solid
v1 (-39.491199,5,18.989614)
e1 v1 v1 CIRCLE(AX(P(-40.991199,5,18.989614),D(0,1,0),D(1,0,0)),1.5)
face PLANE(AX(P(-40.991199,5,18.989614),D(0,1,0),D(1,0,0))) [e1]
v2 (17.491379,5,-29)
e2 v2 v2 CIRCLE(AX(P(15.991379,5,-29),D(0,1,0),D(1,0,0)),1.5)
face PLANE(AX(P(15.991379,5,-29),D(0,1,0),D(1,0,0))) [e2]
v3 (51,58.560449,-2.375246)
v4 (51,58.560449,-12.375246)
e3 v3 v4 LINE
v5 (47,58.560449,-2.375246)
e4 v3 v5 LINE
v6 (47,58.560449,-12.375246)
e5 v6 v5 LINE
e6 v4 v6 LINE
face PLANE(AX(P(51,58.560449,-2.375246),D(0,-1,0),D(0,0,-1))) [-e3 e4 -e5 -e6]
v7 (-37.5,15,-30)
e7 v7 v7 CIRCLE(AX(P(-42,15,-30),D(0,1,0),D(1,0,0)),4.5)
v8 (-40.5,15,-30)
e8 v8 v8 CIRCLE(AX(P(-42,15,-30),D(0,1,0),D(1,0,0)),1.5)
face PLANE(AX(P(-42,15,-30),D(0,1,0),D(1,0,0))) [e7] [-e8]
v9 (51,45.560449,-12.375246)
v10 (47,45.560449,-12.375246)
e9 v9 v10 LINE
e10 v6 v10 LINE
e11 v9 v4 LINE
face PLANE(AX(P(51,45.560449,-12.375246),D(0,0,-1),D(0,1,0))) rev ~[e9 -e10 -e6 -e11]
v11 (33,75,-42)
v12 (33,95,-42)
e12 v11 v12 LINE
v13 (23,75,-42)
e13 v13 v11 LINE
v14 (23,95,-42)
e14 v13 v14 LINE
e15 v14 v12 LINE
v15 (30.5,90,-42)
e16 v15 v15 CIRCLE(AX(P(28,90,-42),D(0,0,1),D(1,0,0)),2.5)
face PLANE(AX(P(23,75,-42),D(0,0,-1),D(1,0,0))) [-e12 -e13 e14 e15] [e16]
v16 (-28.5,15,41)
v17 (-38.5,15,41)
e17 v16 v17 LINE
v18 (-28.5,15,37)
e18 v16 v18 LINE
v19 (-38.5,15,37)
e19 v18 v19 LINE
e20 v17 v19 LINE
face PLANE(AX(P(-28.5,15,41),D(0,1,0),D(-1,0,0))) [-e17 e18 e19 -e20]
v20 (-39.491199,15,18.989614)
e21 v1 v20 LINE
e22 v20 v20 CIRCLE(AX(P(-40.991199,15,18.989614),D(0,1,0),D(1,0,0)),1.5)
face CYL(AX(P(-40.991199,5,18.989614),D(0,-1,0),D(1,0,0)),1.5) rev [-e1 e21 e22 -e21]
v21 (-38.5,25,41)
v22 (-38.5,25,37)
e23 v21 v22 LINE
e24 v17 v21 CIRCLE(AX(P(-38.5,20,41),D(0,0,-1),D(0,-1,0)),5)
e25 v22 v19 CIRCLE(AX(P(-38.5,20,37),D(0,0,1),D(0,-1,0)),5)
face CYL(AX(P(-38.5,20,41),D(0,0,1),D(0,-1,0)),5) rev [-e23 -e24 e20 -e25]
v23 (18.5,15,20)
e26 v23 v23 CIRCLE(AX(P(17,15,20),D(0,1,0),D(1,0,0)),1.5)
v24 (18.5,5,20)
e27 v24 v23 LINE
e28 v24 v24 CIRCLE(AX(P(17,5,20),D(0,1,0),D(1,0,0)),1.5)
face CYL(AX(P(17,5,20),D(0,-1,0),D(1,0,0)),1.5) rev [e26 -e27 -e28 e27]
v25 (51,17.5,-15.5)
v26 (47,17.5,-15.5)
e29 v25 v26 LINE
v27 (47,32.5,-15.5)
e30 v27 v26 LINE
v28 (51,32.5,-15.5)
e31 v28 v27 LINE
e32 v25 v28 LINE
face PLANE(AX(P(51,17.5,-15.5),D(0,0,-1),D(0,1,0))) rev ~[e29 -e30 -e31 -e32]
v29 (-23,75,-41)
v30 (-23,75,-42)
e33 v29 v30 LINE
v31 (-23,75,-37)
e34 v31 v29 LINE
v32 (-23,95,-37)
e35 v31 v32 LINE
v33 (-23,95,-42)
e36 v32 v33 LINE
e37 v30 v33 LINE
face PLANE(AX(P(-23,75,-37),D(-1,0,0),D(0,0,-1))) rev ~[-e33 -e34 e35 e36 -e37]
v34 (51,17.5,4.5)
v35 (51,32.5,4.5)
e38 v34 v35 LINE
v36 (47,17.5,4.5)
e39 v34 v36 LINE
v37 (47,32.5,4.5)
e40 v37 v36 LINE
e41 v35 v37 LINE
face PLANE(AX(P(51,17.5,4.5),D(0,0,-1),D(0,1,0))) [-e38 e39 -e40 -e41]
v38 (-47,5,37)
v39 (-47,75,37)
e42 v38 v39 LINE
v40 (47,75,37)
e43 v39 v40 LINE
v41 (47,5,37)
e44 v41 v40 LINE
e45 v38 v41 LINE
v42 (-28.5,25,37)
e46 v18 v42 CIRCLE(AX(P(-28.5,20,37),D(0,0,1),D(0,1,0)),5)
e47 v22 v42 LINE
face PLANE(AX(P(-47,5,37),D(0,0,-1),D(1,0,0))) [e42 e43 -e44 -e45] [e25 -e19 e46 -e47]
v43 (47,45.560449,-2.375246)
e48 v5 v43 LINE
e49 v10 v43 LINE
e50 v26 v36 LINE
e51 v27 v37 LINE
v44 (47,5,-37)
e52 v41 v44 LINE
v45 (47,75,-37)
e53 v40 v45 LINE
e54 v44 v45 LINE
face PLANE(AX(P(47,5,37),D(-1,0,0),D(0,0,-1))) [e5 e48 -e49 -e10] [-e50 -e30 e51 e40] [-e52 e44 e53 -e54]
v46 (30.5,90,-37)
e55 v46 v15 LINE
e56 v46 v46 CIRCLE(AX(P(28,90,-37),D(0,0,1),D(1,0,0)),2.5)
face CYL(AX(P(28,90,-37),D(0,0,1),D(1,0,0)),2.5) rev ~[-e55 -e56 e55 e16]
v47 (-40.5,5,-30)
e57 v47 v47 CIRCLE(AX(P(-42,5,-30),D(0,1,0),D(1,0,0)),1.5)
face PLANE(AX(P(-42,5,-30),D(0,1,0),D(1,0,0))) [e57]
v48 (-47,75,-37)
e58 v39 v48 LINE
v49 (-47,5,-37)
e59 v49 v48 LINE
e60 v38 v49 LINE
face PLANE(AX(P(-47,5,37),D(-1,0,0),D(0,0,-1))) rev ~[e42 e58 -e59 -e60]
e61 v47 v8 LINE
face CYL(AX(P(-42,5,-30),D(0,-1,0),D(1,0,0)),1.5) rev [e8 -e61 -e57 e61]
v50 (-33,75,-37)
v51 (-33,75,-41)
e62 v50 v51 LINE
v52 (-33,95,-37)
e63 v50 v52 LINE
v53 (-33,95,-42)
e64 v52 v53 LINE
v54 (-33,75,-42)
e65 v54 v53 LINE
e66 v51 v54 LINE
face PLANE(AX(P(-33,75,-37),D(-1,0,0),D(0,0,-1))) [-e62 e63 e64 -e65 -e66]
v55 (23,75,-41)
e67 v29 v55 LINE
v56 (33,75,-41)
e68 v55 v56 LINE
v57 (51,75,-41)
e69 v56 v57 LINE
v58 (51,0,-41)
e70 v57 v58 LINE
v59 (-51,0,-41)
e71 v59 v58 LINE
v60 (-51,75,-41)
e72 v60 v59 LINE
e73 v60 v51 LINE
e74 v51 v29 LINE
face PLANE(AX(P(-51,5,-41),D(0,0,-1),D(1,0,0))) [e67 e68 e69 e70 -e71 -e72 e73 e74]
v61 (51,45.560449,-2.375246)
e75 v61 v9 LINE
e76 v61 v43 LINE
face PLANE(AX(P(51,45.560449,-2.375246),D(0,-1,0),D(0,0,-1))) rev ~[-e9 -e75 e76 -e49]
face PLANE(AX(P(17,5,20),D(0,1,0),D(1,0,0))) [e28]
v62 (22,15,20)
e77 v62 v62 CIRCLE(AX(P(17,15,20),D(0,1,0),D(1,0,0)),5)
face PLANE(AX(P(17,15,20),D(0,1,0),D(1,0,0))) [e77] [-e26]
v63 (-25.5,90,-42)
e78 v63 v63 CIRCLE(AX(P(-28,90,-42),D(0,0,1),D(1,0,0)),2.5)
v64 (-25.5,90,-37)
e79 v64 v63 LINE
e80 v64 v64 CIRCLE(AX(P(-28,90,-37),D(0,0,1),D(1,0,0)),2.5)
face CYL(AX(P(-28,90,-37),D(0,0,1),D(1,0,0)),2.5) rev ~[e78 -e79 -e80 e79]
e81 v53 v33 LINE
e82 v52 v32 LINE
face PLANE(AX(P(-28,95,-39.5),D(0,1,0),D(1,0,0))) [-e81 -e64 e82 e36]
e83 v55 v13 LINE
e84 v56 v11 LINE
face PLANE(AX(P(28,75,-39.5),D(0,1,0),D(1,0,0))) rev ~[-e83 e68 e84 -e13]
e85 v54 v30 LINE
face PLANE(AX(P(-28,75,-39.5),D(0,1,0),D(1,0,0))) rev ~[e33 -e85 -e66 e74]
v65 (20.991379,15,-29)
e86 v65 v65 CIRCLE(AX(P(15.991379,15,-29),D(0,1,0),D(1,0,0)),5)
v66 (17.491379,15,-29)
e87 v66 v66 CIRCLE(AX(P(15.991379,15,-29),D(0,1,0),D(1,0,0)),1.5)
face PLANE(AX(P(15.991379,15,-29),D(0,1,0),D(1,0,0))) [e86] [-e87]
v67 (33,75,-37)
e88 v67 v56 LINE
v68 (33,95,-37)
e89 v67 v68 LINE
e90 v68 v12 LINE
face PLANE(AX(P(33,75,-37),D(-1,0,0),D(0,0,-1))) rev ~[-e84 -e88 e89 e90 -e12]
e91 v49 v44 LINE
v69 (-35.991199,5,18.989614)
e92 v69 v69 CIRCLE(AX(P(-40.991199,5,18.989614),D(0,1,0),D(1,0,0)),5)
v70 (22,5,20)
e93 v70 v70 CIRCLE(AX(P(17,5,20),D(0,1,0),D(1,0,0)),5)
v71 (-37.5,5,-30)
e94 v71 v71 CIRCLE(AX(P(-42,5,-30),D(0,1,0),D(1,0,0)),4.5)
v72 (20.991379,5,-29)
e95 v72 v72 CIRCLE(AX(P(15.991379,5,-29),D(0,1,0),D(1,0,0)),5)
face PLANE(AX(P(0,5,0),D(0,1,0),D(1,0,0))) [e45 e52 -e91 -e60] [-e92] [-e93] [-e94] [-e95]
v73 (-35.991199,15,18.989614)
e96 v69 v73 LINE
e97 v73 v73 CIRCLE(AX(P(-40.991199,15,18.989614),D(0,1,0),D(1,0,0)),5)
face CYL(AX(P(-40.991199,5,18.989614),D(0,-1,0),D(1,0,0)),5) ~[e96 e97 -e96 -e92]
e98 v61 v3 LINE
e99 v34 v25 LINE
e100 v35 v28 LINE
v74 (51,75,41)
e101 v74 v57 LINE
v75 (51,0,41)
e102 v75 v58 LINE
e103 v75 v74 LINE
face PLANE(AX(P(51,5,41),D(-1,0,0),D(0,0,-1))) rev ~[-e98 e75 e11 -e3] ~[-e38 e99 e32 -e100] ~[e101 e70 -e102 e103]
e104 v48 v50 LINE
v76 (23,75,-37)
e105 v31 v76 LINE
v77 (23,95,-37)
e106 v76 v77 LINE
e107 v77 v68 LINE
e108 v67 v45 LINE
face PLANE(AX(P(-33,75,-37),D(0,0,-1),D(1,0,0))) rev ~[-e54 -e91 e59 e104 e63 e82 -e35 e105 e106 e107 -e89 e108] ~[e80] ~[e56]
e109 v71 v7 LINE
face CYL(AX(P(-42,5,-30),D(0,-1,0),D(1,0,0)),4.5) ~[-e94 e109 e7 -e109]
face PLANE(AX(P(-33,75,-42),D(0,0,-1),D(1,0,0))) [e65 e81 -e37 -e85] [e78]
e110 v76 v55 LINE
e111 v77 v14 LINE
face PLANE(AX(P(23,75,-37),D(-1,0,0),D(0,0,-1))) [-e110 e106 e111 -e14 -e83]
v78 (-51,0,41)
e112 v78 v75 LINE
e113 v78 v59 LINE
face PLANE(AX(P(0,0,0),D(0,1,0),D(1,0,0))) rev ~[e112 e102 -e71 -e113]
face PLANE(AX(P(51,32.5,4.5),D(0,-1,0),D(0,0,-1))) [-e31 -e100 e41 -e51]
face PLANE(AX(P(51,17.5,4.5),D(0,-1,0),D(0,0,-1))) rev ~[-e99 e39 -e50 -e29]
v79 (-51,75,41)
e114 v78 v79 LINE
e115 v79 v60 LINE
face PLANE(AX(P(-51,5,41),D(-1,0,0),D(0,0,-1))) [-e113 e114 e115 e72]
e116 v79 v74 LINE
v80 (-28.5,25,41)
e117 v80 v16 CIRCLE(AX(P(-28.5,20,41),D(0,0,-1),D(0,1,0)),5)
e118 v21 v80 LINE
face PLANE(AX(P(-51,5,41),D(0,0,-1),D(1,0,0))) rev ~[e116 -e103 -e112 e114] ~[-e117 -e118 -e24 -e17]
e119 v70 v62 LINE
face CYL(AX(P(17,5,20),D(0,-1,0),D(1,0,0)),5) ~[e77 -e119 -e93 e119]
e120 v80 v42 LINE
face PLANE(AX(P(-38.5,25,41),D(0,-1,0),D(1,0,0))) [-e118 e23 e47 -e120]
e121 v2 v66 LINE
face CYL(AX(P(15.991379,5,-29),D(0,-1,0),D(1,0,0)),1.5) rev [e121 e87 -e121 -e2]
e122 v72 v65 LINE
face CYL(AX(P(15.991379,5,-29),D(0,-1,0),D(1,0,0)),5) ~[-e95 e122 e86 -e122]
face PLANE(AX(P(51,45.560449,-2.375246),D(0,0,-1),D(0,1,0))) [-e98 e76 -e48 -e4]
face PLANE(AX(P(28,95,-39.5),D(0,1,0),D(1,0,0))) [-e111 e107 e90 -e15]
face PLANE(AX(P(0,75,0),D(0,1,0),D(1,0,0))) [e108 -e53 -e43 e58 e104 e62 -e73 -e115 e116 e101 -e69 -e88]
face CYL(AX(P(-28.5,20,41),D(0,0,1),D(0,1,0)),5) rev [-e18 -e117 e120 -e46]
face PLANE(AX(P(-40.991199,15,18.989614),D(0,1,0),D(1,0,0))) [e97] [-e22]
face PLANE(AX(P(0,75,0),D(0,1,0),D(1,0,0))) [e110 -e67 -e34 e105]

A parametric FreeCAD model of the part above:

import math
import FreeCAD as App
import Part
import Sketcher
from FreeCAD import Vector


def add_polygon(sketch, points):
    """Adds a closed chain of lines whose ends are joined by coincident constraints."""
    first, n = sketch.GeometryCount, len(points)
    for a, b in zip(points, points[1:] + points[:1]):
        sketch.addGeometry(Part.LineSegment(App.Vector(*a, 0), App.Vector(*b, 0)), False)
    for i in range(n):
        sketch.addConstraint(Sketcher.Constraint("Coincident", first + i, 2, first + (i + 1) % n, 1))

doc = App.newDocument("Part")
params = doc.addObject("Spreadsheet::Sheet", "Params")
for row, (alias, value) in enumerate([
    ("sketch1_width", "102 mm"),
    ("sketch1_height", "82 mm"),
    ("pad1_length", "5 mm"),
    ("sketch2_width", "102 mm"),
    ("sketch2_width2", "94 mm"),
    ("sketch2_height", "82 mm"),
    ("sketch2_height2", "74 mm"),
    ("pad2_length", "70 mm"),
    ("sketch3_radius", "5 mm"),
    ("sketch3_width", "10 mm"),
    ("sketch4_width", "15 mm"),
    ("sketch4_width2", "13 mm"),
    ("sketch4_height", "20 mm"),
    ("sketch4_height2", "10 mm"),
    ("pocket2_length", "10 mm"),
    ("sketch5_diameter", "10 mm"),
    ("sketch5_diameter2", "9 mm"),
    ("pad3_length", "10 mm"),
    ("sketch6_diameter", "3 mm"),
    ("pocket3_length", "10 mm"),
    ("sketch7_width", "10 mm"),
    ("sketch7_height", "5 mm"),
    ("pad4_length", "20 mm"),
    ("sketch8_diameter", "5 mm"),
    ("pocket4_length", "10 mm"),
], start=1):
    params.set(f"A{row}", alias)
    params.set(f"B{row}", "=" + value)
    params.setAlias(f"B{row}", alias)

body = doc.addObject("PartDesign::Body", "Body")

# Sketch on XZ plane
sketch1 = body.newObject("Sketcher::SketchObject", "Sketch")
sketch1.AttachmentSupport = (doc.getObject("XZ_Plane"), [""])
sketch1.MapMode = "FlatFace"
add_polygon(sketch1, [(-51, -41), (-51, 41), (51, 41), (51, -41)])  # lines 0-3
sketch1.addConstraint(Sketcher.Constraint("Vertical", 0))
sketch1.addConstraint(Sketcher.Constraint("Horizontal", 1))
sketch1.addConstraint(Sketcher.Constraint("Vertical", 2))
sketch1.addConstraint(Sketcher.Constraint("Horizontal", 3))
sketch1.addConstraint(Sketcher.Constraint("Symmetric", 0, 2, 2, 2, -1, 1))
sketch1.addConstraint(Sketcher.Constraint("DistanceX", 1, 1, 1, 2, 102.0))
sketch1.addConstraint(Sketcher.Constraint("DistanceY", 0, 1, 0, 2, 82.0))
sketch1.setExpression("Constraints[9]", "Params.sketch1_width")
sketch1.setExpression("Constraints[10]", "Params.sketch1_height")
pad1 = body.newObject("PartDesign::Pad", "Pad")
pad1.Profile = sketch1
pad1.setExpression("Length", "Params.pad1_length")
pad1.Reversed = True

# Sketch on XZ plane
sketch2 = body.newObject("Sketcher::SketchObject", "Sketch001")
sketch2.AttachmentSupport = (doc.getObject("XZ_Plane"), [""])
sketch2.MapMode = "FlatFace"
sketch2.AttachmentOffset = App.Placement(Vector(0, 0, -5), App.Rotation())
add_polygon(sketch2, [(-51, -41), (-51, 41), (51, 41), (51, -41)])  # lines 0-3
add_polygon(sketch2, [(47, 37), (-47, 37), (-47, -37), (47, -37)])  # lines 4-7
sketch2.addConstraint(Sketcher.Constraint("Vertical", 0))
sketch2.addConstraint(Sketcher.Constraint("Horizontal", 1))
sketch2.addConstraint(Sketcher.Constraint("Vertical", 2))
sketch2.addConstraint(Sketcher.Constraint("Horizontal", 3))
sketch2.addConstraint(Sketcher.Constraint("Horizontal", 4))
sketch2.addConstraint(Sketcher.Constraint("Vertical", 5))
sketch2.addConstraint(Sketcher.Constraint("Horizontal", 6))
sketch2.addConstraint(Sketcher.Constraint("Vertical", 7))
sketch2.addConstraint(Sketcher.Constraint("Symmetric", 0, 2, 2, 2, -1, 1))
sketch2.addConstraint(Sketcher.Constraint("Symmetric", 4, 2, 6, 2, -1, 1))
sketch2.addConstraint(Sketcher.Constraint("DistanceX", 1, 1, 1, 2, 102.0))
sketch2.addConstraint(Sketcher.Constraint("DistanceX", 4, 2, 4, 1, 94.0))
sketch2.addConstraint(Sketcher.Constraint("DistanceY", 0, 1, 0, 2, 82.0))
sketch2.addConstraint(Sketcher.Constraint("DistanceY", 5, 2, 5, 1, 74.0))
sketch2.setExpression("Constraints[18]", "Params.sketch2_width")
sketch2.setExpression("Constraints[19]", "Params.sketch2_width2")
sketch2.setExpression("Constraints[20]", "Params.sketch2_height")
sketch2.setExpression("Constraints[21]", "Params.sketch2_height2")
pad2 = body.newObject("PartDesign::Pad", "Pad001")
pad2.Profile = sketch2
pad2.setExpression("Length", "Params.pad2_length")
pad2.Reversed = True

# Sketch on XY plane
sketch3 = body.newObject("Sketcher::SketchObject", "Sketch002")
sketch3.AttachmentSupport = (doc.getObject("XY_Plane"), [""])
sketch3.MapMode = "FlatFace"
sketch3.AttachmentOffset = App.Placement(Vector(0, 0, 41), App.Rotation())
sketch3.addGeometry(Part.LineSegment(Vector(-28, 25, 0), Vector(-38, 25, 0)), False)
sketch3.addGeometry(Part.ArcOfCircle(Part.Circle(Vector(-38, 20, 0), Vector(0, 0, 1), 5), math.radians(90), math.radians(270)), False)
sketch3.addGeometry(Part.LineSegment(Vector(-38, 15, 0), Vector(-28, 15, 0)), False)
sketch3.addGeometry(Part.ArcOfCircle(Part.Circle(Vector(-28, 20, 0), Vector(0, 0, 1), 5), math.radians(-90), math.radians(90)), False)
sketch3.addConstraint(Sketcher.Constraint("Tangent", 0, 2, 1, 1))
sketch3.addConstraint(Sketcher.Constraint("Tangent", 1, 2, 2, 1))
sketch3.addConstraint(Sketcher.Constraint("Tangent", 2, 2, 3, 1))
sketch3.addConstraint(Sketcher.Constraint("Tangent", 3, 2, 0, 1))
sketch3.addConstraint(Sketcher.Constraint("Horizontal", 0))
sketch3.addConstraint(Sketcher.Constraint("Horizontal", 2))
sketch3.addConstraint(Sketcher.Constraint("Radius", 1, 5.0))
sketch3.addConstraint(Sketcher.Constraint("DistanceX", 0, 2, 0, 1, 10.0))
sketch3.addConstraint(Sketcher.Constraint("DistanceY", -1, 1, 1, 3, 20.0))
sketch3.addConstraint(Sketcher.Constraint("DistanceX", 1, 3, -1, 1, 38.5))
sketch3.setExpression("Constraints[6]", "Params.sketch3_radius")
sketch3.setExpression("Constraints[7]", "Params.sketch3_width")
pocket1 = body.newObject("PartDesign::Pocket", "Pocket")
pocket1.Profile = sketch3
pocket1.Type = "UpToFirst"

# Sketch on YZ plane
sketch4 = body.newObject("Sketcher::SketchObject", "Sketch003")
sketch4.AttachmentSupport = (doc.getObject("YZ_Plane"), [""])
sketch4.MapMode = "FlatFace"
sketch4.AttachmentOffset = App.Placement(Vector(0, 0, 51), App.Rotation())
add_polygon(sketch4, [(32, 4), (18, 4), (18, -16), (32, -16)])  # lines 0-3
add_polygon(sketch4, [(59, -2), (46, -2), (46, -12), (59, -12)])  # lines 4-7
sketch4.addConstraint(Sketcher.Constraint("Horizontal", 0))
sketch4.addConstraint(Sketcher.Constraint("Vertical", 1))
sketch4.addConstraint(Sketcher.Constraint("Horizontal", 2))
sketch4.addConstraint(Sketcher.Constraint("Vertical", 3))
sketch4.addConstraint(Sketcher.Constraint("Horizontal", 4))
sketch4.addConstraint(Sketcher.Constraint("Vertical", 5))
sketch4.addConstraint(Sketcher.Constraint("Horizontal", 6))
sketch4.addConstraint(Sketcher.Constraint("Vertical", 7))
sketch4.addConstraint(Sketcher.Constraint("DistanceX", 0, 2, 0, 1, 15.0))
sketch4.addConstraint(Sketcher.Constraint("DistanceX", 4, 2, 4, 1, 13.0))
sketch4.addConstraint(Sketcher.Constraint("DistanceY", 1, 2, 1, 1, 20.0))
sketch4.addConstraint(Sketcher.Constraint("DistanceY", 5, 2, 5, 1, 10.0))
sketch4.addConstraint(Sketcher.Constraint("DistanceX", -1, 1, 0, 2, 17.5))
sketch4.addConstraint(Sketcher.Constraint("DistanceY", -1, 1, 0, 2, 4.5))
sketch4.addConstraint(Sketcher.Constraint("DistanceX", -1, 1, 4, 2, 45.560449))
sketch4.addConstraint(Sketcher.Constraint("DistanceY", 4, 2, -1, 1, 2.375246))
sketch4.setExpression("Constraints[16]", "Params.sketch4_width")
sketch4.setExpression("Constraints[17]", "Params.sketch4_width2")
sketch4.setExpression("Constraints[18]", "Params.sketch4_height")
sketch4.setExpression("Constraints[19]", "Params.sketch4_height2")
pocket2 = body.newObject("PartDesign::Pocket", "Pocket001")
pocket2.Profile = sketch4
pocket2.setExpression("Length", "Params.pocket2_length")

# Sketch on XZ plane
sketch5 = body.newObject("Sketcher::SketchObject", "Sketch004")
sketch5.AttachmentSupport = (doc.getObject("XZ_Plane"), [""])
sketch5.MapMode = "FlatFace"
sketch5.AttachmentOffset = App.Placement(Vector(0, 0, -5), App.Rotation())
sketch5.addGeometry(Part.Circle(Vector(17, 20, 0), Vector(0, 0, 1), 5), False)
sketch5.addGeometry(Part.Circle(Vector(-41, 19, 0), Vector(0, 0, 1), 5), False)
sketch5.addGeometry(Part.Circle(Vector(16, -29, 0), Vector(0, 0, 1), 5), False)
sketch5.addGeometry(Part.Circle(Vector(-42, -30, 0), Vector(0, 0, 1), 4.5), False)
sketch5.addConstraint(Sketcher.Constraint("Equal", 0, 1))
sketch5.addConstraint(Sketcher.Constraint("Equal", 1, 2))
sketch5.addConstraint(Sketcher.Constraint("Diameter", 0, 10.0))
sketch5.addConstraint(Sketcher.Constraint("Diameter", 3, 9.0))
sketch5.addConstraint(Sketcher.Constraint("DistanceX", -1, 1, 0, 3, 17.0))
sketch5.addConstraint(Sketcher.Constraint("DistanceY", -1, 1, 0, 3, 20.0))
sketch5.addConstraint(Sketcher.Constraint("DistanceY", 2, 3, -1, 1, 29.0))
sketch5.addConstraint(Sketcher.Constraint("DistanceX", 3, 3, -1, 1, 42.0))
sketch5.addConstraint(Sketcher.Constraint("DistanceY", 3, 3, -1, 1, 30.0))
sketch5.addConstraint(Sketcher.Constraint("DistanceX", 1, 3, -1, 1, 40.991199))
sketch5.addConstraint(Sketcher.Constraint("DistanceX", -1, 1, 2, 3, 15.991379))
sketch5.addConstraint(Sketcher.Constraint("DistanceY", -1, 1, 1, 3, 18.989614))
sketch5.setExpression("Constraints[2]", "Params.sketch5_diameter")
sketch5.setExpression("Constraints[3]", "Params.sketch5_diameter2")
pad3 = body.newObject("PartDesign::Pad", "Pad002")
pad3.Profile = sketch5
pad3.setExpression("Length", "Params.pad3_length")
pad3.Reversed = True

# Sketch on XZ plane
sketch6 = body.newObject("Sketcher::SketchObject", "Sketch005")
sketch6.AttachmentSupport = (doc.getObject("XZ_Plane"), [""])
sketch6.MapMode = "FlatFace"
sketch6.AttachmentOffset = App.Placement(Vector(0, 0, -5), App.Rotation())
sketch6.addGeometry(Part.Circle(Vector(-42, -30, 0), Vector(0, 0, 1), 1.5), False)
sketch6.addGeometry(Part.Circle(Vector(16, -29, 0), Vector(0, 0, 1), 1.5), False)
sketch6.addGeometry(Part.Circle(Vector(-41, 19, 0), Vector(0, 0, 1), 1.5), False)
sketch6.addGeometry(Part.Circle(Vector(17, 20, 0), Vector(0, 0, 1), 1.5), False)
sketch6.addConstraint(Sketcher.Constraint("Equal", 0, 1))
sketch6.addConstraint(Sketcher.Constraint("Equal", 1, 2))
sketch6.addConstraint(Sketcher.Constraint("Equal", 2, 3))
sketch6.addConstraint(Sketcher.Constraint("Diameter", 0, 3.0))
sketch6.addConstraint(Sketcher.Constraint("DistanceX", 0, 3, -1, 1, 42.0))
sketch6.addConstraint(Sketcher.Constraint("DistanceY", 0, 3, -1, 1, 30.0))
sketch6.addConstraint(Sketcher.Constraint("DistanceY", 1, 3, -1, 1, 29.0))
sketch6.addConstraint(Sketcher.Constraint("DistanceX", -1, 1, 3, 3, 17.0))
sketch6.addConstraint(Sketcher.Constraint("DistanceY", -1, 1, 3, 3, 20.0))
sketch6.addConstraint(Sketcher.Constraint("DistanceX", 2, 3, -1, 1, 40.991199))
sketch6.addConstraint(Sketcher.Constraint("DistanceX", -1, 1, 1, 3, 15.991379))
sketch6.addConstraint(Sketcher.Constraint("DistanceY", -1, 1, 2, 3, 18.989614))
sketch6.setExpression("Constraints[3]", "Params.sketch6_diameter")
pocket3 = body.newObject("PartDesign::Pocket", "Pocket002")
pocket3.Profile = sketch6
pocket3.setExpression("Length", "Params.pocket3_length")

# Sketch on XZ plane
sketch7 = body.newObject("Sketcher::SketchObject", "Sketch006")
sketch7.AttachmentSupport = (doc.getObject("XZ_Plane"), [""])
sketch7.MapMode = "FlatFace"
sketch7.AttachmentOffset = App.Placement(Vector(0, 0, -75), App.Rotation())
add_polygon(sketch7, [(-33, -42), (-33, -37), (-23, -37), (-23, -42)])  # lines 0-3
add_polygon(sketch7, [(23, -42), (23, -37), (33, -37), (33, -42)])  # lines 4-7
sketch7.addConstraint(Sketcher.Constraint("Vertical", 0))
sketch7.addConstraint(Sketcher.Constraint("Horizontal", 1))
sketch7.addConstraint(Sketcher.Constraint("Vertical", 2))
sketch7.addConstraint(Sketcher.Constraint("Horizontal", 3))
sketch7.addConstraint(Sketcher.Constraint("Vertical", 4))
sketch7.addConstraint(Sketcher.Constraint("Horizontal", 5))
sketch7.addConstraint(Sketcher.Constraint("Vertical", 6))
sketch7.addConstraint(Sketcher.Constraint("Horizontal", 7))
sketch7.addConstraint(Sketcher.Constraint("Symmetric", 1, 2, 4, 2, -2))
sketch7.addConstraint(Sketcher.Constraint("Symmetric", 3, 2, 6, 2, -2))
sketch7.addConstraint(Sketcher.Constraint("DistanceX", 1, 1, 1, 2, 10.0))
sketch7.addConstraint(Sketcher.Constraint("DistanceY", 0, 1, 0, 2, 5.0))
sketch7.addConstraint(Sketcher.Constraint("DistanceX", 0, 2, -1, 1, 33.0))
sketch7.addConstraint(Sketcher.Constraint("DistanceY", 0, 2, -1, 1, 37.0))
sketch7.setExpression("Constraints[18]", "Params.sketch7_width")
sketch7.setExpression("Constraints[19]", "Params.sketch7_height")
pad4 = body.newObject("PartDesign::Pad", "Pad003")
pad4.Profile = sketch7
pad4.setExpression("Length", "Params.pad4_length")
pad4.Reversed = True

# Sketch on XY plane
sketch8 = body.newObject("Sketcher::SketchObject", "Sketch007")
sketch8.AttachmentSupport = (doc.getObject("XY_Plane"), [""])
sketch8.MapMode = "FlatFace"
sketch8.AttachmentOffset = App.Placement(Vector(0, 0, -37), App.Rotation())
sketch8.addGeometry(Part.Circle(Vector(-28, 90, 0), Vector(0, 0, 1), 2.5), False)
sketch8.addGeometry(Part.Circle(Vector(28, 90, 0), Vector(0, 0, 1), 2.5), False)
sketch8.addConstraint(Sketcher.Constraint("Equal", 0, 1))
sketch8.addConstraint(Sketcher.Constraint("Symmetric", 0, 3, 1, 3, -2))
sketch8.addConstraint(Sketcher.Constraint("Diameter", 0, 5.0))
sketch8.addConstraint(Sketcher.Constraint("DistanceX", 0, 3, -1, 1, 28.0))
sketch8.addConstraint(Sketcher.Constraint("DistanceY", -1, 1, 0, 3, 90.0))
sketch8.setExpression("Constraints[2]", "Params.sketch8_diameter")
pocket4 = body.newObject("PartDesign::Pocket", "Pocket003")
pocket4.Profile = sketch8
pocket4.setExpression("Length", "Params.pocket4_length")

doc.recompute()
